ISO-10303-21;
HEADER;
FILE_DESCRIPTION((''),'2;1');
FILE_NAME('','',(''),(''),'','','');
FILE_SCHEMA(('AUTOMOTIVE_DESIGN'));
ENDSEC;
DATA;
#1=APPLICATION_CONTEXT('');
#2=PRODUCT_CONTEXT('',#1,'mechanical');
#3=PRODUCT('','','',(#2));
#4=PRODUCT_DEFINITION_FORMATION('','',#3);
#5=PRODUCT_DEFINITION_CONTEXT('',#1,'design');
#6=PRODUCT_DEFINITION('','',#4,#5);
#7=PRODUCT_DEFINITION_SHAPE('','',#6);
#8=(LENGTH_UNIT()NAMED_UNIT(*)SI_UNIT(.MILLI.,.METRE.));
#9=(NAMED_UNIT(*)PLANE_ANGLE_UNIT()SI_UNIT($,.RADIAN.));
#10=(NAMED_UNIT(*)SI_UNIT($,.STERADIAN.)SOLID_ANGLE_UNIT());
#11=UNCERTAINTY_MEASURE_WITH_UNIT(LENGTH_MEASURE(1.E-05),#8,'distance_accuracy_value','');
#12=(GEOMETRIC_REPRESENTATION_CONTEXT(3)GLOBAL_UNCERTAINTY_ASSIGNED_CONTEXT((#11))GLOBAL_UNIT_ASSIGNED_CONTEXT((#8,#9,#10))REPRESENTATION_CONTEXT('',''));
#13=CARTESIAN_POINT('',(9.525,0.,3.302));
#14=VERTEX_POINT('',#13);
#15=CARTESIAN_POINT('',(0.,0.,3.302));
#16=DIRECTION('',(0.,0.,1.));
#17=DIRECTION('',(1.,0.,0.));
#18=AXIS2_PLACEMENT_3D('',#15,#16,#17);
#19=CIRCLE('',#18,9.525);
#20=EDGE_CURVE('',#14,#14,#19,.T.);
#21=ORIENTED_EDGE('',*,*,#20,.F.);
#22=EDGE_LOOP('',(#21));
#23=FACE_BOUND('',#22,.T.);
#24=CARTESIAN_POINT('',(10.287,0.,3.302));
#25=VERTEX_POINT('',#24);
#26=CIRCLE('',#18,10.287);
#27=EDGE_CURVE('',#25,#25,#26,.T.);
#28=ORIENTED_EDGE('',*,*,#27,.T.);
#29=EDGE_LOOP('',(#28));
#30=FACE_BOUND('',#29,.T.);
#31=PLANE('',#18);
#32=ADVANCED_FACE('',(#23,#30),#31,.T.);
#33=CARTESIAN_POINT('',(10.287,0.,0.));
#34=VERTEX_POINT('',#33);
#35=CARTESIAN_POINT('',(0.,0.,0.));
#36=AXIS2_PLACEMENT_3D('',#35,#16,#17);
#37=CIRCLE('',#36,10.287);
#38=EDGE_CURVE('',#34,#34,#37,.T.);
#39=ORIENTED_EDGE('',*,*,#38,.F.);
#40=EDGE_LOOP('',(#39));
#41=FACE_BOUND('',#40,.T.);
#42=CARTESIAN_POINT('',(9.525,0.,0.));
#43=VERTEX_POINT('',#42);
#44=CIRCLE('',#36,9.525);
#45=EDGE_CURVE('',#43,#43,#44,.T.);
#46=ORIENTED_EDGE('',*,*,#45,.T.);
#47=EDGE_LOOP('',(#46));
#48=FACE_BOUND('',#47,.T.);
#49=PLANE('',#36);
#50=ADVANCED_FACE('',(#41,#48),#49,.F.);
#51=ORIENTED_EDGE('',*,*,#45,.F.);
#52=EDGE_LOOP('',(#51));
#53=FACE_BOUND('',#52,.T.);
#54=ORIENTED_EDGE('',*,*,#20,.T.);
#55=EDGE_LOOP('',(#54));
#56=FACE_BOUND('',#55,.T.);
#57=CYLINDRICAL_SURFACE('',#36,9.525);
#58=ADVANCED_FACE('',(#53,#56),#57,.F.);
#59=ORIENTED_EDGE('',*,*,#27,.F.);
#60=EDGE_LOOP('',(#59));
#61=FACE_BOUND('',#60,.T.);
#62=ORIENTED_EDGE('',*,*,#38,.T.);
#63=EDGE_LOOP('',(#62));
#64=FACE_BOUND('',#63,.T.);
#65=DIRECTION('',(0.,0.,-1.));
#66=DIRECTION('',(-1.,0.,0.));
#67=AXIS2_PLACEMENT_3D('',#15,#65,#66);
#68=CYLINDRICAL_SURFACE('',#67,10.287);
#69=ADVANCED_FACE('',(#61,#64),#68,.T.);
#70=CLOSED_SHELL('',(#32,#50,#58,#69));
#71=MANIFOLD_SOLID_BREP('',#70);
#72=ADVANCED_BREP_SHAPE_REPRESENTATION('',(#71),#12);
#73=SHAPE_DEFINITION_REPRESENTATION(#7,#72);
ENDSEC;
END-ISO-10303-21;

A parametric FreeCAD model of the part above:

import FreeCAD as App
import Part
import Sketcher
Q = App.Units.Quantity

doc = App.newDocument("Part")
params = doc.addObject("Spreadsheet::Sheet", "Params")
for row, (alias, value) in enumerate([
    ("sketch1_diameter", "0.81 in"),
    ("pad1_length", "0.13 in"),
    ("sketch2_diameter", "0.75 in"),
], start=1):
    params.set(f"A{row}", alias)
    params.set(f"B{row}", "=" + value)
    params.setAlias(f"B{row}", alias)

body = doc.addObject("PartDesign::Body", "Body")

# Sketch on XY plane
sketch1 = body.newObject("Sketcher::SketchObject", "Sketch")
sketch1.AttachmentSupport = (doc.getObject("XY_Plane"), [""])
sketch1.MapMode = "FlatFace"
sketch1.addGeometry(Part.Circle(App.Vector(0, 0, 0), App.Vector(0, 0, 1), 10), False)
sketch1.addConstraint([
    Sketcher.Constraint("Coincident", 0, 3, -1, 1),
    Sketcher.Constraint("Diameter", 0, Q("0.81 in")),
])
sketch1.setExpression("Constraints[1]", "Params.sketch1_diameter")
pad1 = body.newObject("PartDesign::Pad", "Pad")
pad1.Profile = sketch1
pad1.setExpression("Length", "Params.pad1_length")

# Sketch on XY plane
sketch2 = body.newObject("Sketcher::SketchObject", "Sketch001")
sketch2.AttachmentSupport = (doc.getObject("XY_Plane"), [""])
sketch2.MapMode = "FlatFace"
sketch2.AttachmentOffset = App.Placement(App.Vector(0, 0, 0.13 * 25.4), App.Rotation())
sketch2.addGeometry(Part.Circle(App.Vector(0, 0, 0), App.Vector(0, 0, 1), 10), False)
sketch2.addConstraint([
    Sketcher.Constraint("Coincident", 0, 3, -1, 1),
    Sketcher.Constraint("Diameter", 0, Q("0.75 in")),
])
sketch2.setExpression("Constraints[1]", "Params.sketch2_diameter")
pocket1 = body.newObject("PartDesign::Pocket", "Pocket")
pocket1.Profile = sketch2
pocket1.Type = "ThroughAll"

doc.recompute()
